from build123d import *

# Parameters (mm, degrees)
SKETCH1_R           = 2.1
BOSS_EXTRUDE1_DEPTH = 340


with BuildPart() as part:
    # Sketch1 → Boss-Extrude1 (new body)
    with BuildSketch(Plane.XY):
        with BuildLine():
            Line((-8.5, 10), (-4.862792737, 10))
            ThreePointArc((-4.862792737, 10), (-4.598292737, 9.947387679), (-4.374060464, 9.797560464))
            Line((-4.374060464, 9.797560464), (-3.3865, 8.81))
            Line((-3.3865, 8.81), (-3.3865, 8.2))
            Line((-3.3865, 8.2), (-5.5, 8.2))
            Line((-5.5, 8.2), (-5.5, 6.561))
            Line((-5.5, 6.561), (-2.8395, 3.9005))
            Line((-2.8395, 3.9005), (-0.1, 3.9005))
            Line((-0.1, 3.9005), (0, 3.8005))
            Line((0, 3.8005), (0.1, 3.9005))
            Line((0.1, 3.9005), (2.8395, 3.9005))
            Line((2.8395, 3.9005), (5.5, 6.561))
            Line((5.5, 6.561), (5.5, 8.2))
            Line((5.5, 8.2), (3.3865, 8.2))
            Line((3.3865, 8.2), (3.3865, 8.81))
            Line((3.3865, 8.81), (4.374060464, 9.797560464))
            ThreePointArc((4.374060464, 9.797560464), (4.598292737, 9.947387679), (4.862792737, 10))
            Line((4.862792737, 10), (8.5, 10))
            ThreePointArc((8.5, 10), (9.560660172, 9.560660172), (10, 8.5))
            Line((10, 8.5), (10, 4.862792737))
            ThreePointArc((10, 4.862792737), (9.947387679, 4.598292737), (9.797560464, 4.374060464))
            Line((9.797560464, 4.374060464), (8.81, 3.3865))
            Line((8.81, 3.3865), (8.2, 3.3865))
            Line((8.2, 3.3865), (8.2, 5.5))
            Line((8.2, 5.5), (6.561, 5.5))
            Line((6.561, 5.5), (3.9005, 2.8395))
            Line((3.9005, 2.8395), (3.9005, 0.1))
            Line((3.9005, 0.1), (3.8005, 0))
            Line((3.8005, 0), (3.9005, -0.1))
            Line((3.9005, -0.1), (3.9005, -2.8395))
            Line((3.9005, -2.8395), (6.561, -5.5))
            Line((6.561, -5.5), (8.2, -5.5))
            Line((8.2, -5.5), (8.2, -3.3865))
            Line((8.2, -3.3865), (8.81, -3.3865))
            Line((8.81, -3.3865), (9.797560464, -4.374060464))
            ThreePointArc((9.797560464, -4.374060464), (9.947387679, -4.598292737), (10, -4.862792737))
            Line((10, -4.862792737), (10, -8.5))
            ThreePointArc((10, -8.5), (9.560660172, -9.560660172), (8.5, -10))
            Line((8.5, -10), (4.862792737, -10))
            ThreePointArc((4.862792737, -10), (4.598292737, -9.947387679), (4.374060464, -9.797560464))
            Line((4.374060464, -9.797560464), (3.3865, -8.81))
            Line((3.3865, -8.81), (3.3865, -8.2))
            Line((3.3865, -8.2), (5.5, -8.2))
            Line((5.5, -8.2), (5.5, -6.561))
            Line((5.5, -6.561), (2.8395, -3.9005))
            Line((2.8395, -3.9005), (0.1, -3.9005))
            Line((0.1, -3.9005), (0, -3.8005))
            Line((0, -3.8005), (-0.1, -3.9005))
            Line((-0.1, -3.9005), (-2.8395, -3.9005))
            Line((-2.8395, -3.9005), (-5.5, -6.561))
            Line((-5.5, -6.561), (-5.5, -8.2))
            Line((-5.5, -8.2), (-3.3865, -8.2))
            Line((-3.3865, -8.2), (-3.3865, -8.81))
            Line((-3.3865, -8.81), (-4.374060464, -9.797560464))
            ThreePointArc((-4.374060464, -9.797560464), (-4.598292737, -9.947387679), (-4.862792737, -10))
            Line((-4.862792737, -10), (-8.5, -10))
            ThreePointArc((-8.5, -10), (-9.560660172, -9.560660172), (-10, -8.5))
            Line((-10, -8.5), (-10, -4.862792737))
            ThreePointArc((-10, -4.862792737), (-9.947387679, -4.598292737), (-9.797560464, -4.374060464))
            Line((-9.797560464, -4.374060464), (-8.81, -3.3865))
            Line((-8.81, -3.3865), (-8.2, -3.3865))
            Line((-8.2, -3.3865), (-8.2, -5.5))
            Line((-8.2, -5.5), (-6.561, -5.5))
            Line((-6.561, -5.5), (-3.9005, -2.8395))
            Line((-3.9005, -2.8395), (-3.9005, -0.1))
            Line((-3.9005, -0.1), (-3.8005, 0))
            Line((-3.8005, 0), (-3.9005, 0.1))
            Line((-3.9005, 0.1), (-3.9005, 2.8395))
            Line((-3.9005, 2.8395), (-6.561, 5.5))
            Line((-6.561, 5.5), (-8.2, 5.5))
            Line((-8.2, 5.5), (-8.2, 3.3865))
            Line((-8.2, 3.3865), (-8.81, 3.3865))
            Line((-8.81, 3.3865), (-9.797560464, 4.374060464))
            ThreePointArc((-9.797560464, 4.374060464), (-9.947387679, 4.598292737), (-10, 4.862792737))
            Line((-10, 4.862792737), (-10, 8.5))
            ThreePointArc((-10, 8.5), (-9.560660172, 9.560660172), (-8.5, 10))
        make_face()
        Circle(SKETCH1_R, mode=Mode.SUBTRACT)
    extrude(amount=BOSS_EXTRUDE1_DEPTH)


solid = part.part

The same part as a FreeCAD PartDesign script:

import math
import FreeCAD as App
import Part
import Sketcher

V = App.Vector
Q = App.Units.Quantity

doc = App.newDocument("Part")
body = doc.addObject("PartDesign::Body", "Body")

# Sketch on XY plane
sketch1 = body.newObject("Sketcher::SketchObject", "Sketch")
sketch1.AttachmentSupport = (doc.getObject("XY_Plane"), [""])
sketch1.MapMode = "FlatFace"
sketch1.addGeometry([
    Part.LineSegment(V(-4.86, 10, 0), V(-8.5, 10, 0)),  # 0
    Part.ArcOfCircle(Part.Circle(V(-8.5, 8.5, 0), V(0, 0, 1), 1.5), math.radians(90), math.radians(180)),  # 1
    Part.LineSegment(V(-10, 8.5, 0), V(-10, 4.86, 0)),  # 2
    Part.ArcOfCircle(Part.Circle(V(-9.31, 4.86, 0), V(0, 0, 1), 0.69), math.radians(180), math.radians(225)),  # 3
    Part.LineSegment(V(-9.8, 4.37, 0), V(-8.81, 3.39, 0)),  # 4
    Part.LineSegment(V(-8.81, 3.39, 0), V(-8.2, 3.39, 0)),  # 5
    Part.LineSegment(V(-8.2, 3.39, 0), V(-8.2, 5.5, 0)),  # 6
    Part.LineSegment(V(-8.2, 5.5, 0), V(-6.56, 5.5, 0)),  # 7
    Part.LineSegment(V(-6.56, 5.5, 0), V(-3.9, 2.84, 0)),  # 8
    Part.LineSegment(V(-3.9, 2.84, 0), V(-3.9, 0.1, 0)),  # 9
    Part.LineSegment(V(-3.9, 0.1, 0), V(-3.8, 0, 0)),  # 10
    Part.LineSegment(V(-3.8, 0, 0), V(-3.9, -0.1, 0)),  # 11
    Part.LineSegment(V(-3.9, -0.1, 0), V(-3.9, -2.84, 0)),  # 12
    Part.LineSegment(V(-3.9, -2.84, 0), V(-6.56, -5.5, 0)),  # 13
    Part.LineSegment(V(-6.56, -5.5, 0), V(-8.2, -5.5, 0)),  # 14
    Part.LineSegment(V(-8.2, -5.5, 0), V(-8.2, -3.39, 0)),  # 15
    Part.LineSegment(V(-8.2, -3.39, 0), V(-8.81, -3.39, 0)),  # 16
    Part.LineSegment(V(-8.81, -3.39, 0), V(-9.8, -4.37, 0)),  # 17
    Part.ArcOfCircle(Part.Circle(V(-9.31, -4.86, 0), V(0, 0, 1), 0.69), math.radians(135), math.radians(180)),  # 18
    Part.LineSegment(V(-10, -4.86, 0), V(-10, -8.5, 0)),  # 19
    Part.ArcOfCircle(Part.Circle(V(-8.5, -8.5, 0), V(0, 0, 1), 1.5), math.radians(180), math.radians(270)),  # 20
    Part.LineSegment(V(-8.5, -10, 0), V(-4.86, -10, 0)),  # 21
    Part.ArcOfCircle(Part.Circle(V(-4.86, -9.31, 0), V(0, 0, 1), 0.69), math.radians(-90), math.radians(-45)),  # 22
    Part.LineSegment(V(-4.37, -9.8, 0), V(-3.39, -8.81, 0)),  # 23
    Part.LineSegment(V(-3.39, -8.81, 0), V(-3.39, -8.2, 0)),  # 24
    Part.LineSegment(V(-3.39, -8.2, 0), V(-5.5, -8.2, 0)),  # 25
    Part.LineSegment(V(-5.5, -8.2, 0), V(-5.5, -6.56, 0)),  # 26
    Part.LineSegment(V(-5.5, -6.56, 0), V(-2.84, -3.9, 0)),  # 27
    Part.LineSegment(V(-2.84, -3.9, 0), V(-0.1, -3.9, 0)),  # 28
    Part.LineSegment(V(-0.1, -3.9, 0), V(0, -3.8, 0)),  # 29
    Part.LineSegment(V(0, -3.8, 0), V(0.1, -3.9, 0)),  # 30
    Part.LineSegment(V(0.1, -3.9, 0), V(2.84, -3.9, 0)),  # 31
    Part.LineSegment(V(2.84, -3.9, 0), V(5.5, -6.56, 0)),  # 32
    Part.LineSegment(V(5.5, -6.56, 0), V(5.5, -8.2, 0)),  # 33
    Part.LineSegment(V(5.5, -8.2, 0), V(3.39, -8.2, 0)),  # 34
    Part.LineSegment(V(3.39, -8.2, 0), V(3.39, -8.81, 0)),  # 35
    Part.LineSegment(V(3.39, -8.81, 0), V(4.37, -9.8, 0)),  # 36
    Part.ArcOfCircle(Part.Circle(V(4.86, -9.31, 0), V(0, 0, 1), 0.69), math.radians(-135), math.radians(-90)),  # 37
    Part.LineSegment(V(4.86, -10, 0), V(8.5, -10, 0)),  # 38
    Part.ArcOfCircle(Part.Circle(V(8.5, -8.5, 0), V(0, 0, 1), 1.5), math.radians(-90), math.radians(0)),  # 39
    Part.LineSegment(V(10, -8.5, 0), V(10, -4.86, 0)),  # 40
    Part.ArcOfCircle(Part.Circle(V(9.31, -4.86, 0), V(0, 0, 1), 0.69), math.radians(0), math.radians(45)),  # 41
    Part.LineSegment(V(9.8, -4.37, 0), V(8.81, -3.39, 0)),  # 42
    Part.LineSegment(V(8.81, -3.39, 0), V(8.2, -3.39, 0)),  # 43
    Part.LineSegment(V(8.2, -3.39, 0), V(8.2, -5.5, 0)),  # 44
    Part.LineSegment(V(8.2, -5.5, 0), V(6.56, -5.5, 0)),  # 45
    Part.LineSegment(V(6.56, -5.5, 0), V(3.9, -2.84, 0)),  # 46
    Part.LineSegment(V(3.9, -2.84, 0), V(3.9, -0.1, 0)),  # 47
    Part.LineSegment(V(3.9, -0.1, 0), V(3.8, 0, 0)),  # 48
    Part.LineSegment(V(3.8, 0, 0), V(3.9, 0.1, 0)),  # 49
    Part.LineSegment(V(3.9, 0.1, 0), V(3.9, 2.84, 0)),  # 50
    Part.LineSegment(V(3.9, 2.84, 0), V(6.56, 5.5, 0)),  # 51
    Part.LineSegment(V(6.56, 5.5, 0), V(8.2, 5.5, 0)),  # 52
    Part.LineSegment(V(8.2, 5.5, 0), V(8.2, 3.39, 0)),  # 53
    Part.LineSegment(V(8.2, 3.39, 0), V(8.81, 3.39, 0)),  # 54
    Part.LineSegment(V(8.81, 3.39, 0), V(9.8, 4.37, 0)),  # 55
    Part.ArcOfCircle(Part.Circle(V(9.31, 4.86, 0), V(0, 0, 1), 0.69), math.radians(-45), math.radians(0)),  # 56
    Part.LineSegment(V(10, 4.86, 0), V(10, 8.5, 0)),  # 57
    Part.ArcOfCircle(Part.Circle(V(8.5, 8.5, 0), V(0, 0, 1), 1.5), math.radians(0), math.radians(90)),  # 58
    Part.LineSegment(V(8.5, 10, 0), V(4.86, 10, 0)),  # 59
    Part.ArcOfCircle(Part.Circle(V(4.86, 9.31, 0), V(0, 0, 1), 0.69), math.radians(90), math.radians(135)),  # 60
    Part.LineSegment(V(4.37, 9.8, 0), V(3.39, 8.81, 0)),  # 61
    Part.LineSegment(V(3.39, 8.81, 0), V(3.39, 8.2, 0)),  # 62
    Part.LineSegment(V(3.39, 8.2, 0), V(5.5, 8.2, 0)),  # 63
    Part.LineSegment(V(5.5, 8.2, 0), V(5.5, 6.56, 0)),  # 64
    Part.LineSegment(V(5.5, 6.56, 0), V(2.84, 3.9, 0)),  # 65
    Part.LineSegment(V(2.84, 3.9, 0), V(0.1, 3.9, 0)),  # 66
    Part.LineSegment(V(0.1, 3.9, 0), V(0, 3.8, 0)),  # 67
    Part.LineSegment(V(0, 3.8, 0), V(-0.1, 3.9, 0)),  # 68
    Part.LineSegment(V(-0.1, 3.9, 0), V(-2.84, 3.9, 0)),  # 69
    Part.LineSegment(V(-2.84, 3.9, 0), V(-5.5, 6.56, 0)),  # 70
    Part.LineSegment(V(-5.5, 6.56, 0), V(-5.5, 8.2, 0)),  # 71
    Part.LineSegment(V(-5.5, 8.2, 0), V(-3.39, 8.2, 0)),  # 72
    Part.LineSegment(V(-3.39, 8.2, 0), V(-3.39, 8.81, 0)),  # 73
    Part.LineSegment(V(-3.39, 8.81, 0), V(-4.37, 9.8, 0)),  # 74
    Part.ArcOfCircle(Part.Circle(V(-4.86, 9.31, 0), V(0, 0, 1), 0.69), math.radians(45), math.radians(90)),  # 75
    Part.Circle(V(0, 0, 0), V(0, 0, 1), 2.1),  # 76
], False)
sketch1.addConstraint([
    Sketcher.Constraint("Tangent", 0, 2, 1, 1),
    Sketcher.Constraint("Tangent", 1, 2, 2, 1),
    Sketcher.Constraint("Tangent", 2, 2, 3, 1),
    Sketcher.Constraint("Tangent", 3, 2, 4, 1),
    Sketcher.Constraint("Coincident", 4, 2, 5, 1),
    Sketcher.Constraint("Coincident", 5, 2, 6, 1),
    Sketcher.Constraint("Coincident", 6, 2, 7, 1),
    Sketcher.Constraint("Coincident", 7, 2, 8, 1),
    Sketcher.Constraint("Coincident", 8, 2, 9, 1),
    Sketcher.Constraint("Coincident", 9, 2, 10, 1),
    Sketcher.Constraint("Coincident", 10, 2, 11, 1),
    Sketcher.Constraint("Coincident", 11, 2, 12, 1),
    Sketcher.Constraint("Coincident", 12, 2, 13, 1),
    Sketcher.Constraint("Coincident", 13, 2, 14, 1),
    Sketcher.Constraint("Coincident", 14, 2, 15, 1),
    Sketcher.Constraint("Coincident", 15, 2, 16, 1),
    Sketcher.Constraint("Coincident", 16, 2, 17, 1),
    Sketcher.Constraint("Tangent", 17, 2, 18, 1),
    Sketcher.Constraint("Tangent", 18, 2, 19, 1),
    Sketcher.Constraint("Tangent", 19, 2, 20, 1),
    Sketcher.Constraint("Tangent", 20, 2, 21, 1),
    Sketcher.Constraint("Tangent", 21, 2, 22, 1),
    Sketcher.Constraint("Tangent", 22, 2, 23, 1),
    Sketcher.Constraint("Coincident", 23, 2, 24, 1),
    Sketcher.Constraint("Coincident", 24, 2, 25, 1),
    Sketcher.Constraint("Coincident", 25, 2, 26, 1),
    Sketcher.Constraint("Coincident", 26, 2, 27, 1),
    Sketcher.Constraint("Coincident", 27, 2, 28, 1),
    Sketcher.Constraint("Coincident", 28, 2, 29, 1),
    Sketcher.Constraint("Coincident", 29, 2, 30, 1),
    Sketcher.Constraint("Coincident", 30, 2, 31, 1),
    Sketcher.Constraint("Coincident", 31, 2, 32, 1),
    Sketcher.Constraint("Coincident", 32, 2, 33, 1),
    Sketcher.Constraint("Coincident", 33, 2, 34, 1),
    Sketcher.Constraint("Coincident", 34, 2, 35, 1),
    Sketcher.Constraint("Coincident", 35, 2, 36, 1),
    Sketcher.Constraint("Tangent", 36, 2, 37, 1),
    Sketcher.Constraint("Tangent", 37, 2, 38, 1),
    Sketcher.Constraint("Tangent", 38, 2, 39, 1),
    Sketcher.Constraint("Tangent", 39, 2, 40, 1),
    Sketcher.Constraint("Tangent", 40, 2, 41, 1),
    Sketcher.Constraint("Tangent", 41, 2, 42, 1),
    Sketcher.Constraint("Coincident", 42, 2, 43, 1),
    Sketcher.Constraint("Coincident", 43, 2, 44, 1),
    Sketcher.Constraint("Coincident", 44, 2, 45, 1),
    Sketcher.Constraint("Coincident", 45, 2, 46, 1),
    Sketcher.Constraint("Coincident", 46, 2, 47, 1),
    Sketcher.Constraint("Coincident", 47, 2, 48, 1),
    Sketcher.Constraint("Coincident", 48, 2, 49, 1),
    Sketcher.Constraint("Coincident", 49, 2, 50, 1),
    Sketcher.Constraint("Coincident", 50, 2, 51, 1),
    Sketcher.Constraint("Coincident", 51, 2, 52, 1),
    Sketcher.Constraint("Coincident", 52, 2, 53, 1),
    Sketcher.Constraint("Coincident", 53, 2, 54, 1),
    Sketcher.Constraint("Coincident", 54, 2, 55, 1),
    Sketcher.Constraint("Tangent", 55, 2, 56, 1),
    Sketcher.Constraint("Tangent", 56, 2, 57, 1),
    Sketcher.Constraint("Tangent", 57, 2, 58, 1),
    Sketcher.Constraint("Tangent", 58, 2, 59, 1),
    Sketcher.Constraint("Tangent", 59, 2, 60, 1),
    Sketcher.Constraint("Tangent", 60, 2, 61, 1),
    Sketcher.Constraint("Coincident", 61, 2, 62, 1),
    Sketcher.Constraint("Coincident", 62, 2, 63, 1),
    Sketcher.Constraint("Coincident", 63, 2, 64, 1),
    Sketcher.Constraint("Coincident", 64, 2, 65, 1),
    Sketcher.Constraint("Coincident", 65, 2, 66, 1),
    Sketcher.Constraint("Coincident", 66, 2, 67, 1),
    Sketcher.Constraint("Coincident", 67, 2, 68, 1),
    Sketcher.Constraint("Coincident", 68, 2, 69, 1),
    Sketcher.Constraint("Coincident", 69, 2, 70, 1),
    Sketcher.Constraint("Coincident", 70, 2, 71, 1),
    Sketcher.Constraint("Coincident", 71, 2, 72, 1),
    Sketcher.Constraint("Coincident", 72, 2, 73, 1),
    Sketcher.Constraint("Coincident", 73, 2, 74, 1),
    Sketcher.Constraint("Tangent", 74, 2, 75, 1),
    Sketcher.Constraint("Tangent", 75, 2, 0, 1),
    Sketcher.Constraint("Horizontal", 0),
    Sketcher.Constraint("Vertical", 2),
    Sketcher.Constraint("Horizontal", 5),
    Sketcher.Constraint("Vertical", 6),
    Sketcher.Constraint("Horizontal", 7),
    Sketcher.Constraint("Vertical", 9),
    Sketcher.Constraint("Vertical", 12),
    Sketcher.Constraint("Horizontal", 14),
    Sketcher.Constraint("Vertical", 15),
    Sketcher.Constraint("Horizontal", 16),
    Sketcher.Constraint("Vertical", 19),
    Sketcher.Constraint("Horizontal", 21),
    Sketcher.Constraint("Vertical", 24),
    Sketcher.Constraint("Horizontal", 25),
    Sketcher.Constraint("Vertical", 26),
    Sketcher.Constraint("Horizontal", 28),
    Sketcher.Constraint("Horizontal", 31),
    Sketcher.Constraint("Vertical", 33),
    Sketcher.Constraint("Horizontal", 34),
    Sketcher.Constraint("Vertical", 35),
    Sketcher.Constraint("Horizontal", 38),
    Sketcher.Constraint("Vertical", 40),
    Sketcher.Constraint("Horizontal", 43),
    Sketcher.Constraint("Vertical", 44),
    Sketcher.Constraint("Horizontal", 45),
    Sketcher.Constraint("Vertical", 47),
    Sketcher.Constraint("Vertical", 50),
    Sketcher.Constraint("Horizontal", 52),
    Sketcher.Constraint("Vertical", 53),
    Sketcher.Constraint("Horizontal", 54),
    Sketcher.Constraint("Vertical", 57),
    Sketcher.Constraint("Horizontal", 59),
    Sketcher.Constraint("Vertical", 62),
    Sketcher.Constraint("Horizontal", 63),
    Sketcher.Constraint("Vertical", 64),
    Sketcher.Constraint("Horizontal", 66),
    Sketcher.Constraint("Horizontal", 69),
    Sketcher.Constraint("Vertical", 71),
    Sketcher.Constraint("Horizontal", 72),
    Sketcher.Constraint("Vertical", 73),
    Sketcher.Constraint("Coincident", 76, 3, -1, 1),
    Sketcher.Constraint("Equal", 3, 18),
    Sketcher.Constraint("Equal", 1, 20),
    Sketcher.Constraint("Equal", 18, 22),
    Sketcher.Constraint("Equal", 22, 37),
    Sketcher.Constraint("Equal", 20, 39),
    Sketcher.Constraint("Equal", 37, 41),
    Sketcher.Constraint("Equal", 41, 56),
    Sketcher.Constraint("Equal", 39, 58),
    Sketcher.Constraint("Equal", 56, 60),
    Sketcher.Constraint("Equal", 60, 75),
    Sketcher.Constraint("Symmetric", 1, 3, 39, 3, -1, 1),
    Sketcher.Constraint("Symmetric", 18, 3, 56, 3, -1, 1),
    Sketcher.Constraint("Symmetric", 22, 3, 60, 3, -1, 1),
    Sketcher.Constraint("Symmetric", 3, 2, 41, 2, -1, 1),
    Sketcher.Constraint("Symmetric", 5, 2, 43, 2, -1, 1),
    Sketcher.Constraint("Symmetric", 7, 2, 45, 2, -1, 1),
    Sketcher.Constraint("Symmetric", 8, 2, 46, 2, -1, 1),
    Sketcher.Constraint("Symmetric", 10, 2, 48, 2, -1, 1),
    Sketcher.Constraint("Symmetric", 11, 2, 49, 2, -1, 1),
    Sketcher.Constraint("Symmetric", 13, 2, 51, 2, -1, 1),
    Sketcher.Constraint("Symmetric", 15, 2, 53, 2, -1, 1),
    Sketcher.Constraint("Symmetric", 23, 2, 61, 2, -1, 1),
    Sketcher.Constraint("Symmetric", 25, 2, 63, 2, -1, 1),
    Sketcher.Constraint("Symmetric", 27, 2, 65, 2, -1, 1),
    Sketcher.Constraint("Symmetric", 29, 2, 67, 2, -1, 1),
    Sketcher.Constraint("Symmetric", 30, 2, 68, 2, -1, 1),
    Sketcher.Constraint("Symmetric", 32, 2, 70, 2, -1, 1),
    Sketcher.Constraint("Symmetric", 34, 2, 72, 2, -1, 1),
    Sketcher.Constraint("Symmetric", 36, 2, 74, 2, -1, 1),
    Sketcher.Constraint("Symmetric", 22, 3, 37, 3, -2),
    Sketcher.Constraint("Symmetric", 18, 3, 41, 3, -2),
    Sketcher.Constraint("Symmetric", 28, 2, 30, 2, -2),
    Sketcher.Constraint("Symmetric", 26, 2, 32, 2, -2),
    Sketcher.Constraint("Symmetric", 24, 2, 34, 2, -2),
    Sketcher.Constraint("Symmetric", 16, 2, 42, 2, -2),
    Sketcher.Constraint("Symmetric", 14, 2, 44, 2, -2),
    Sketcher.Constraint("Symmetric", 12, 2, 46, 2, -2),
    Sketcher.Constraint("PointOnObject", 10, 2, -1),
    Sketcher.Constraint("PointOnObject", 29, 2, -2),
    Sketcher.Constraint("Parallel", 4, 8),
    Sketcher.Constraint("Parallel", 8, 10),
    Sketcher.Constraint("Perpendicular", 10, 11),
    Sketcher.Constraint("Parallel", 11, 13),
    Sketcher.Constraint("Parallel", 13, 17),
    Sketcher.Constraint("Parallel", 17, 23),
    Sketcher.Constraint("Parallel", 23, 27),
    Sketcher.Constraint("Parallel", 27, 29),
    Sketcher.Constraint("Parallel", 30, 32),
    Sketcher.Constraint("Parallel", 32, 36),
    Sketcher.Constraint("Parallel", 46, 48),
    Sketcher.Constraint("Parallel", 49, 51),
    Sketcher.Constraint("Parallel", 51, 55),
    Sketcher.Constraint("Parallel", 61, 65),
    Sketcher.Constraint("Parallel", 65, 67),
    Sketcher.Constraint("Parallel", 68, 70),
    Sketcher.Constraint("Equal", 59, 2),
    Sketcher.Constraint("Equal", 72, 6),
    Sketcher.Constraint("Equal", 69, 9),
    Sketcher.Constraint("Equal", 54, 24),
    Sketcher.Constraint("Equal", 52, 26),
    Sketcher.Constraint("Equal", 17, 23),
    Sketcher.Constraint("Equal", 13, 27),
    Sketcher.Constraint("Equal", 11, 29),
    Sketcher.Constraint("Diameter", 76, Q("4.2 mm")),
    Sketcher.Constraint("Radius", 1, Q("1.5 mm")),
    Sketcher.Constraint("DistanceY", -1, 1, 0, 2, Q("10 mm")),
    Sketcher.Constraint("DistanceX", 5, 1, 5, 2, Q("0.61 mm")),
    Sketcher.Constraint("DistanceX", 5, 2, -1, 1, Q("8.2 mm")),
    Sketcher.Constraint("DistanceY", -1, 1, 6, 2, Q("5.5 mm")),
    Sketcher.Constraint("DistanceY", -1, 1, 9, 2, Q("0.1 mm")),
    Sketcher.Constraint("DistanceX", 7, 1, 7, 2, Q("1.639 mm")),
    Sketcher.Constraint("Radius", 3, Q("0.691172 mm")),
    Sketcher.Constraint("DistanceX", 25, 2, 25, 1, Q("2.1135 mm")),
    Sketcher.Constraint("DistanceX", 28, 1, 28, 2, Q("2.7395 mm")),
])
pad1 = body.newObject("PartDesign::Pad", "Pad")
pad1.Profile = sketch1
pad1.Length = 340

doc.recompute()
